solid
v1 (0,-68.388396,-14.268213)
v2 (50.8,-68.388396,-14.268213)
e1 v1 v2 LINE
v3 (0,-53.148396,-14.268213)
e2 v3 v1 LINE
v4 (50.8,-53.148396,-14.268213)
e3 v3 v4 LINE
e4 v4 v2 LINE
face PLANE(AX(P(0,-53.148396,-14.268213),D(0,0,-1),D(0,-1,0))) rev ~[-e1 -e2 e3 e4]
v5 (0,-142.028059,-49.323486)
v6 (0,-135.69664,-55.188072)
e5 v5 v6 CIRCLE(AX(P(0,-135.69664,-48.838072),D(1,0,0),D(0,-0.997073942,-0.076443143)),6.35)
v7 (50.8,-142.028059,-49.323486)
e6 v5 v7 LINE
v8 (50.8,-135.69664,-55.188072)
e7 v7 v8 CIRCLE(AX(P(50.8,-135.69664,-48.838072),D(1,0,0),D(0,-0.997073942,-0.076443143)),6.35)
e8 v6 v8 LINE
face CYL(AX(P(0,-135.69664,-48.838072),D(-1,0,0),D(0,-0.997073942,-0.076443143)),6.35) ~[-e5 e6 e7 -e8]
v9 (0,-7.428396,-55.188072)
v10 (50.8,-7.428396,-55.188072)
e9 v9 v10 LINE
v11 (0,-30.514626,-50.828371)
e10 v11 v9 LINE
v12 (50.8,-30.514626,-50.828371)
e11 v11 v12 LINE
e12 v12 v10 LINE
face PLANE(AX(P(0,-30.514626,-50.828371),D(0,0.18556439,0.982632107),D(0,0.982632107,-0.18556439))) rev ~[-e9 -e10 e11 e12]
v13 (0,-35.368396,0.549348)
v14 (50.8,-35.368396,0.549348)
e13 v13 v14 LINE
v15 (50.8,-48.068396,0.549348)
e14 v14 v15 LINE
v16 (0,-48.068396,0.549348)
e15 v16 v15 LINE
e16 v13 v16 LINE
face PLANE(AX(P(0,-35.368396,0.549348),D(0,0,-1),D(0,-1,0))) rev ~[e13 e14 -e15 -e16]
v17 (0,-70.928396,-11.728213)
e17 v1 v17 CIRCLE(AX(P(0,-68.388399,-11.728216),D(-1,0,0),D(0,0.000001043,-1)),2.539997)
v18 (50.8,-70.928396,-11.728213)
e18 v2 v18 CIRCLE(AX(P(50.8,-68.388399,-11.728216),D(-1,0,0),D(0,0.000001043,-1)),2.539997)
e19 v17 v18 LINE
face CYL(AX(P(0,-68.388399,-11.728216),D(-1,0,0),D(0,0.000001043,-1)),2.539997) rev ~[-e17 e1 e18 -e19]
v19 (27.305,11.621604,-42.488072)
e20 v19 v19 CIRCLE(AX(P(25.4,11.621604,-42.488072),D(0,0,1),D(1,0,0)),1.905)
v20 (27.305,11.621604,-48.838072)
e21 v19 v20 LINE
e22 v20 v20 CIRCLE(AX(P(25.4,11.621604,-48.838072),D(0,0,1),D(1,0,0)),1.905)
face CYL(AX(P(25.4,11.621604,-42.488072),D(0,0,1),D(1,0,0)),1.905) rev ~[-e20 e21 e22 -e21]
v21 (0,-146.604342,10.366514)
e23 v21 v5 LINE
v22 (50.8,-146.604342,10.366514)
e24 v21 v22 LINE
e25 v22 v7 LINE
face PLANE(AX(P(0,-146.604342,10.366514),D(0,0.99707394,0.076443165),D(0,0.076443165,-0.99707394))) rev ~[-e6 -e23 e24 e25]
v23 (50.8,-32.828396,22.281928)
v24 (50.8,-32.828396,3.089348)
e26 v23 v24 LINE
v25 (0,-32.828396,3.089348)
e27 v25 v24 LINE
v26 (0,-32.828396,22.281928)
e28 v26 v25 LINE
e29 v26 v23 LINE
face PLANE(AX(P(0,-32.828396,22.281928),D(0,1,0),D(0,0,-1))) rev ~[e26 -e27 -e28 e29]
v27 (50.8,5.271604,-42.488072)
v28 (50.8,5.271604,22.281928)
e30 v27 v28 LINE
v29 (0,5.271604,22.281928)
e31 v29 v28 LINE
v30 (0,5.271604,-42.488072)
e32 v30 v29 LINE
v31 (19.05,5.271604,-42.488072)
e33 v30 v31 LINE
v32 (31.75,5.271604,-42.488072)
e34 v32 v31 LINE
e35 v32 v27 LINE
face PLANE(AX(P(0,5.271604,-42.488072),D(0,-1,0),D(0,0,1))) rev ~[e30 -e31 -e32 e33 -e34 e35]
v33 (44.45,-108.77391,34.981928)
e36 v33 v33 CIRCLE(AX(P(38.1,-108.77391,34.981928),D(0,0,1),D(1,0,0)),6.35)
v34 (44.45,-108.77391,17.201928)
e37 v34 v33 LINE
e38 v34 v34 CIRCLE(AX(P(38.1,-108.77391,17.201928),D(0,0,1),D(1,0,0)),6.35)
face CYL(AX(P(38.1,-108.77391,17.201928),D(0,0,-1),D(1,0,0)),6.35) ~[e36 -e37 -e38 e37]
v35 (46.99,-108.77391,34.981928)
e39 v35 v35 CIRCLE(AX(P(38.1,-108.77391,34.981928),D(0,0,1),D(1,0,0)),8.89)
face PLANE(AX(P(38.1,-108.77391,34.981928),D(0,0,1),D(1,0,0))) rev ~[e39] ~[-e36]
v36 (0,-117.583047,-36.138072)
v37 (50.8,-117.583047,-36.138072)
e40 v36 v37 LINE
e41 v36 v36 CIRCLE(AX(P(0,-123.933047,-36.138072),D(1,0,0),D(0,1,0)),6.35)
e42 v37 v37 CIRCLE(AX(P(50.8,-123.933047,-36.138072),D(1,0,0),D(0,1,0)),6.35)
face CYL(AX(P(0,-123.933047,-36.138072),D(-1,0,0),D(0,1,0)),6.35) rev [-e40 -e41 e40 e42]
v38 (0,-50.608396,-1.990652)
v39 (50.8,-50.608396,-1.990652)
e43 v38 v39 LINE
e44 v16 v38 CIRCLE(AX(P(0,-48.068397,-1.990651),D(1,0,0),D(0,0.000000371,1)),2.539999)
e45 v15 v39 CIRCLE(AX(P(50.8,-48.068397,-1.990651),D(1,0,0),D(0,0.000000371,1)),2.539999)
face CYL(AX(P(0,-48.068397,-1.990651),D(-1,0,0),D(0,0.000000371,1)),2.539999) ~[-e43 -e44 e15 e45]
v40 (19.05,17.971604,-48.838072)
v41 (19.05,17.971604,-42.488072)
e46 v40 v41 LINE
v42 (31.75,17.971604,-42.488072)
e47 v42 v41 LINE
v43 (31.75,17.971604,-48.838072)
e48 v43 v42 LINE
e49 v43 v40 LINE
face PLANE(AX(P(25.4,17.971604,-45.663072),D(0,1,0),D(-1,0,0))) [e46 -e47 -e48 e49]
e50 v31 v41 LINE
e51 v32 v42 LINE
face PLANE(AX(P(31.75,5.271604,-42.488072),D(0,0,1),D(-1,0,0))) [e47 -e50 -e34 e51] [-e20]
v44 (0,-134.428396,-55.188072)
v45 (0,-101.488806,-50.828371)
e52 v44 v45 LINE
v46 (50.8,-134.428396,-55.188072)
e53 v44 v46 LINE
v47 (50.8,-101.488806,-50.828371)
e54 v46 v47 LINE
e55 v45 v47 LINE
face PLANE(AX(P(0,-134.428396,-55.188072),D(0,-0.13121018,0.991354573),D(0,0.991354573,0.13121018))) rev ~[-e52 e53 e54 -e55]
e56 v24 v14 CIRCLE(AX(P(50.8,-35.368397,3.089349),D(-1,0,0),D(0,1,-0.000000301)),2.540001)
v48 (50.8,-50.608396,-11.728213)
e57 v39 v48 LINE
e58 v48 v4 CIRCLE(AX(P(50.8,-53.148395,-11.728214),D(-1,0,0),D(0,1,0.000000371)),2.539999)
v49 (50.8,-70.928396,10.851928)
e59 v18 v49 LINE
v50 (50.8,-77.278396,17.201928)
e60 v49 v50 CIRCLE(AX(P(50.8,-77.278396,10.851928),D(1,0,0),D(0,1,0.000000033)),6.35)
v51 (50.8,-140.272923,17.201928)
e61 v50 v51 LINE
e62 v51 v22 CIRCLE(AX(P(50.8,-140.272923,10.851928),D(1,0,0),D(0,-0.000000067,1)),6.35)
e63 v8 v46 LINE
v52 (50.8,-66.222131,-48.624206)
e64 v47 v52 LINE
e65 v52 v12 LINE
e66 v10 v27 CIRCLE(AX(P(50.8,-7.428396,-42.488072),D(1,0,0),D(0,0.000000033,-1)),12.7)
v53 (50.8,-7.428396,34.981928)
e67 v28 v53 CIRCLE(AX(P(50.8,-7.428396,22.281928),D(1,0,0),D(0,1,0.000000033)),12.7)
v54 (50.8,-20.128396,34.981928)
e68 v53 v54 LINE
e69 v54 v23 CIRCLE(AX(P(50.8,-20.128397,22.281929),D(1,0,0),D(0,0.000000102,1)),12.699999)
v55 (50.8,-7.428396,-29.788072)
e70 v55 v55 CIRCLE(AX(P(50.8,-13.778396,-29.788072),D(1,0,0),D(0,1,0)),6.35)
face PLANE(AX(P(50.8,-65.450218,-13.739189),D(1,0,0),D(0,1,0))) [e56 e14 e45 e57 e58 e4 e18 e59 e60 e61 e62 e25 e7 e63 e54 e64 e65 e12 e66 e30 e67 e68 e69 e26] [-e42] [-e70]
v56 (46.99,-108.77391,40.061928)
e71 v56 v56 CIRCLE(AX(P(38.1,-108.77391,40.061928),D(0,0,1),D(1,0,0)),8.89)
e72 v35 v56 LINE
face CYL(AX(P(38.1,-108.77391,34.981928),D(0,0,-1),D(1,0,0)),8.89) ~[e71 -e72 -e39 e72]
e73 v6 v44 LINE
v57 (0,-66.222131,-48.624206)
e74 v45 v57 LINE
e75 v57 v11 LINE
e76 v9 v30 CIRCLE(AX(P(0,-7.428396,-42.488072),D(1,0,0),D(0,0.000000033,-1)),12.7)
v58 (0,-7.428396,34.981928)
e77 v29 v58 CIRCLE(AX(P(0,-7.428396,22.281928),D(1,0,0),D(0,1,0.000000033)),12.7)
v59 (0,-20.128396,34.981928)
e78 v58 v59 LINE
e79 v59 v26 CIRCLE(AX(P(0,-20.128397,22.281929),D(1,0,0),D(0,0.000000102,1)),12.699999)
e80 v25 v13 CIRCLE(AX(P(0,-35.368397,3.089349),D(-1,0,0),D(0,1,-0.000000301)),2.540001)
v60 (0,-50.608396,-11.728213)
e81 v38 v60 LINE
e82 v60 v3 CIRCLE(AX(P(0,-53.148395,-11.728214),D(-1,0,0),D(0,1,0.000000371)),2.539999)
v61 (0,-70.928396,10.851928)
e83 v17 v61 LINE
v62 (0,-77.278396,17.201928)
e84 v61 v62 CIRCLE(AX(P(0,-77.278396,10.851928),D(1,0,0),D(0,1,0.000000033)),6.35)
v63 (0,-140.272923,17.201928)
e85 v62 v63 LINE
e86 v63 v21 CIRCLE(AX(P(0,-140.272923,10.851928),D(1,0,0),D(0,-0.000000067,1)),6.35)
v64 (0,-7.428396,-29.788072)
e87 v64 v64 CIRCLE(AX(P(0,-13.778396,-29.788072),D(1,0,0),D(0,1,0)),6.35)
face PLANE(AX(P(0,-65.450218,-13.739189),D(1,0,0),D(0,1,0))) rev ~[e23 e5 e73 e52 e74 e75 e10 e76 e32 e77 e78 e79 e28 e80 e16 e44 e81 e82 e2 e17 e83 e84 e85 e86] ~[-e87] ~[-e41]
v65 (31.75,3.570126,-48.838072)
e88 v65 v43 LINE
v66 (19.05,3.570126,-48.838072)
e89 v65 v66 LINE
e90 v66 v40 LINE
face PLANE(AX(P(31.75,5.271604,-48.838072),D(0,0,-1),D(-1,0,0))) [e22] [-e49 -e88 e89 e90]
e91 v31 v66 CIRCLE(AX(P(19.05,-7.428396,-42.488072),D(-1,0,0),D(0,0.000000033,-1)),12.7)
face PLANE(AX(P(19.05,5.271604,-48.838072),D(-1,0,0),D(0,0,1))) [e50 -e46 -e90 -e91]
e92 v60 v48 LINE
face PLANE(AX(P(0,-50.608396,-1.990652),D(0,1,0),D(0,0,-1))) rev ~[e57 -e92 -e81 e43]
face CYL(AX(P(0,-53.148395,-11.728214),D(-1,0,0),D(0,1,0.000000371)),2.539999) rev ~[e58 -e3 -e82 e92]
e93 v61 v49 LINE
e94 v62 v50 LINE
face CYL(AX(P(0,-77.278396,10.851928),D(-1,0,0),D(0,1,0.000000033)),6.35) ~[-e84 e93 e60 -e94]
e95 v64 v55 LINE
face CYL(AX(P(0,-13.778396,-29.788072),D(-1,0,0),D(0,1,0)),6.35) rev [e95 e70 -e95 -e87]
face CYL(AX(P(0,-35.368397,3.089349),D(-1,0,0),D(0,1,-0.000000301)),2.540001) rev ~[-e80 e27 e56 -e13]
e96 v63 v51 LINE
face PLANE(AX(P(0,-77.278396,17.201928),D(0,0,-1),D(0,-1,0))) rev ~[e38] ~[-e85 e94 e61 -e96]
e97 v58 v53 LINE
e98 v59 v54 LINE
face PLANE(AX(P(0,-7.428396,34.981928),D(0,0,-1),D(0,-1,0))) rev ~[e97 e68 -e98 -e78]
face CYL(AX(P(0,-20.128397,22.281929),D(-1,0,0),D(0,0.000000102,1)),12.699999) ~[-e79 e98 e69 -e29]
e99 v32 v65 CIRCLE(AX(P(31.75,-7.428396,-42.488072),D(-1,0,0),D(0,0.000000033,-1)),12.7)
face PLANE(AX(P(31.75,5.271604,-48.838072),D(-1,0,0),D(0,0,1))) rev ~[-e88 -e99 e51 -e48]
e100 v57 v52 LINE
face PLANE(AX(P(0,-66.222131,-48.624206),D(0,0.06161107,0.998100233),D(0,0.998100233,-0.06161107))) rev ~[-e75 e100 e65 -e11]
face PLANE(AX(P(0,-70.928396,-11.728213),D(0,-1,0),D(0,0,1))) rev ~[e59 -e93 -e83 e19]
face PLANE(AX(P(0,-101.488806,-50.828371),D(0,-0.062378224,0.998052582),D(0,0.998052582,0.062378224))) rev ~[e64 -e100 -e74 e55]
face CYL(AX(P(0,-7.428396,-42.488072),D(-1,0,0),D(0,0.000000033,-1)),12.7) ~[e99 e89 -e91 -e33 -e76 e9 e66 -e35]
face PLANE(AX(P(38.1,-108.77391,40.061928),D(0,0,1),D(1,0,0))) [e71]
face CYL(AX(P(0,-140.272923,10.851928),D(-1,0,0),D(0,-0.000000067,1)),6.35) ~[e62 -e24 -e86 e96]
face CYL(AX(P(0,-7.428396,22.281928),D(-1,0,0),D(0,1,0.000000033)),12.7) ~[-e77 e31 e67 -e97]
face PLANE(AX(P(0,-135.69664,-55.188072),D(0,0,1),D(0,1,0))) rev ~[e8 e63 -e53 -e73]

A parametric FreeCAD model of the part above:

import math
import FreeCAD as App
import Part
import Sketcher
Q = App.Units.Quantity

doc = App.newDocument("Part")
params = doc.addObject("Spreadsheet::Sheet", "Params")
for row, (alias, value) in enumerate([
    ("sketch1_diameter", "0.5 in"),
    ("sketch1_radius", "0.4999999 in"),
    ("sketch1_radius2", "0.1 in"),
    ("sketch1_width", "0.5 in"),
    ("sketch1_width2", "0.6 in"),
    ("pad1_length", "2 in"),
    ("sketch2_diameter", "0.5 in"),
    ("pad2_length", "0.7 in"),
    ("sketch3_diameter", "0.7 in"),
    ("pad3_length", "0.2 in"),
    ("sketch4_width", "0.5 in"),
    ("sketch4_height", "0.25 in"),
    ("pad4_length", "0.5 in"),
    ("pad4_length2", "1 in"),
    ("sketch5_diameter", "0.15 in"),
    ("pocket1_length", "0.5 in"),
], start=1):
    params.set(f"A{row}", alias)
    params.set(f"B{row}", "=" + value)
    params.setAlias(f"B{row}", alias)

body = doc.addObject("PartDesign::Body", "Body")

sketch1 = body.newObject("Sketcher::SketchObject", "Sketch")
sketch1.AttachmentSupport = (doc.getObject("YZ_Plane"), [""])
sketch1.MapMode = "FlatFace"
sketch1.addGeometry(Part.LineSegment(App.Vector(-7.428396, 34.981928, 0), App.Vector(-20.128396, 34.981928, 0)), False)
sketch1.addGeometry(Part.ArcOfCircle(Part.Circle(App.Vector(-20.128397, 22.281929, 0), App.Vector(0, 0, 1), 12.699999), math.radians(89.999994), math.radians(180.000006)), False)
sketch1.addGeometry(Part.LineSegment(App.Vector(-32.828396, 22.281928, 0), App.Vector(-32.828396, 3.089348, 0)), False)
sketch1.addGeometry(Part.ArcOfCircle(Part.Circle(App.Vector(-35.368397, 3.089349, 0), App.Vector(0, 0, 1), 2.540001), math.radians(-89.999983), math.radians(-0.000017)), False)
sketch1.addGeometry(Part.LineSegment(App.Vector(-35.368396, 0.549348, 0), App.Vector(-48.068396, 0.549348, 0)), False)
sketch1.addGeometry(Part.ArcOfCircle(Part.Circle(App.Vector(-48.068397, -1.990651, 0), App.Vector(0, 0, 1), 2.539999), math.radians(89.999979), math.radians(180.000021)), False)
sketch1.addGeometry(Part.LineSegment(App.Vector(-50.608396, -1.990652, 0), App.Vector(-50.608396, -11.728213, 0)), False)
sketch1.addGeometry(Part.ArcOfCircle(Part.Circle(App.Vector(-53.148395, -11.728214, 0), App.Vector(0, 0, 1), 2.539999), math.radians(-90.000021), math.radians(0.000021)), False)
sketch1.addGeometry(Part.LineSegment(App.Vector(-53.148396, -14.268213, 0), App.Vector(-68.388396, -14.268213, 0)), False)
sketch1.addGeometry(Part.ArcOfCircle(Part.Circle(App.Vector(-68.388399, -11.728216, 0), App.Vector(0, 0, 1), 2.539997), math.radians(179.99994), math.radians(270.00006)), False)
sketch1.addGeometry(Part.LineSegment(App.Vector(-70.928396, -11.728213, 0), App.Vector(-70.928396, 10.851928, 0)), False)
sketch1.addGeometry(Part.ArcOfCircle(Part.Circle(App.Vector(-77.278396, 10.851928, 0), App.Vector(0, 0, 1), 6.35), math.radians(0.000002), math.radians(89.999998)), False)
sketch1.addGeometry(Part.LineSegment(App.Vector(-77.278396, 17.201928, 0), App.Vector(-140.272923, 17.201928, 0)), False)
sketch1.addGeometry(Part.ArcOfCircle(Part.Circle(App.Vector(-140.272923, 10.851928, 0), App.Vector(0, 0, 1), 6.35), math.radians(90.000004), math.radians(184.384148)), False)
sketch1.addGeometry(Part.LineSegment(App.Vector(-146.604342, 10.366514, 0), App.Vector(-142.028059, -49.323486, 0)), False)
sketch1.addGeometry(Part.ArcOfCircle(Part.Circle(App.Vector(-135.69664, -48.838072, 0), App.Vector(0, 0, 1), 6.35), math.radians(-175.615854), math.radians(-90.000004)), False)
sketch1.addGeometry(Part.LineSegment(App.Vector(-135.69664, -55.188072, 0), App.Vector(-134.428396, -55.188072, 0)), False)
sketch1.addGeometry(Part.LineSegment(App.Vector(-134.428396, -55.188072, 0), App.Vector(-101.488806, -50.828371, 0)), False)
sketch1.addGeometry(Part.LineSegment(App.Vector(-101.488806, -50.828371, 0), App.Vector(-66.222131, -48.624206, 0)), False)
sketch1.addGeometry(Part.LineSegment(App.Vector(-66.222131, -48.624206, 0), App.Vector(-30.514626, -50.828371, 0)), False)
sketch1.addGeometry(Part.LineSegment(App.Vector(-30.514626, -50.828371, 0), App.Vector(-7.428396, -55.188072, 0)), False)
sketch1.addGeometry(Part.ArcOfCircle(Part.Circle(App.Vector(-7.428396, -42.488072, 0), App.Vector(0, 0, 1), 12.7), math.radians(-89.999998), math.radians(-0.000002)), False)
sketch1.addGeometry(Part.LineSegment(App.Vector(5.271604, -42.488072, 0), App.Vector(5.271604, 22.281928, 0)), False)
sketch1.addGeometry(Part.ArcOfCircle(Part.Circle(App.Vector(-7.428396, 22.281928, 0), App.Vector(0, 0, 1), 12.7), math.radians(0.000002), math.radians(89.999998)), False)
sketch1.addGeometry(Part.Circle(App.Vector(-123.933047, -36.138072, 0), App.Vector(0, 0, 1), 6.35), False)
sketch1.addGeometry(Part.Circle(App.Vector(-13.778396, -29.788072, 0), App.Vector(0, 0, 1), 6.35), False)
sketch1.addConstraint(Sketcher.Constraint("Tangent", 0, 2, 1, 1))
sketch1.addConstraint(Sketcher.Constraint("Tangent", 1, 2, 2, 1))
sketch1.addConstraint(Sketcher.Constraint("Tangent", 2, 2, 3, 2))
sketch1.addConstraint(Sketcher.Constraint("Tangent", 3, 1, 4, 1))
sketch1.addConstraint(Sketcher.Constraint("Tangent", 4, 2, 5, 1))
sketch1.addConstraint(Sketcher.Constraint("Tangent", 5, 2, 6, 1))
sketch1.addConstraint(Sketcher.Constraint("Tangent", 6, 2, 7, 2))
sketch1.addConstraint(Sketcher.Constraint("Tangent", 7, 1, 8, 1))
sketch1.addConstraint(Sketcher.Constraint("Tangent", 8, 2, 9, 2))
sketch1.addConstraint(Sketcher.Constraint("Tangent", 9, 1, 10, 1))
sketch1.addConstraint(Sketcher.Constraint("Tangent", 10, 2, 11, 1))
sketch1.addConstraint(Sketcher.Constraint("Tangent", 11, 2, 12, 1))
sketch1.addConstraint(Sketcher.Constraint("Tangent", 12, 2, 13, 1))
sketch1.addConstraint(Sketcher.Constraint("Tangent", 13, 2, 14, 1))
sketch1.addConstraint(Sketcher.Constraint("Tangent", 14, 2, 15, 1))
sketch1.addConstraint(Sketcher.Constraint("Tangent", 15, 2, 16, 1))
sketch1.addConstraint(Sketcher.Constraint("Coincident", 16, 2, 17, 1))
sketch1.addConstraint(Sketcher.Constraint("Coincident", 17, 2, 18, 1))
sketch1.addConstraint(Sketcher.Constraint("Coincident", 18, 2, 19, 1))
sketch1.addConstraint(Sketcher.Constraint("Coincident", 19, 2, 20, 1))
sketch1.addConstraint(Sketcher.Constraint("Coincident", 20, 2, 21, 1))
sketch1.addConstraint(Sketcher.Constraint("Tangent", 21, 2, 22, 1))
sketch1.addConstraint(Sketcher.Constraint("Tangent", 22, 2, 23, 1))
sketch1.addConstraint(Sketcher.Constraint("Tangent", 23, 2, 0, 1))
sketch1.addConstraint(Sketcher.Constraint("Horizontal", 0))
sketch1.addConstraint(Sketcher.Constraint("Vertical", 2))
sketch1.addConstraint(Sketcher.Constraint("Horizontal", 4))
sketch1.addConstraint(Sketcher.Constraint("Vertical", 6))
sketch1.addConstraint(Sketcher.Constraint("Horizontal", 8))
sketch1.addConstraint(Sketcher.Constraint("Vertical", 10))
sketch1.addConstraint(Sketcher.Constraint("Horizontal", 12))
sketch1.addConstraint(Sketcher.Constraint("Horizontal", 16))
sketch1.addConstraint(Sketcher.Constraint("Vertical", 22))
sketch1.addConstraint(Sketcher.Constraint("Equal", 3, 5))
sketch1.addConstraint(Sketcher.Constraint("Equal", 5, 7))
sketch1.addConstraint(Sketcher.Constraint("Equal", 7, 9))
sketch1.addConstraint(Sketcher.Constraint("Equal", 11, 13))
sketch1.addConstraint(Sketcher.Constraint("Equal", 13, 15))
sketch1.addConstraint(Sketcher.Constraint("Equal", 1, 21))
sketch1.addConstraint(Sketcher.Constraint("Equal", 21, 23))
sketch1.addConstraint(Sketcher.Constraint("Equal", 15, 24))
sketch1.addConstraint(Sketcher.Constraint("Equal", 24, 25))
sketch1.addConstraint(Sketcher.Constraint("Horizontal", 17, 2, 19, 2))
sketch1.addConstraint(Sketcher.Constraint("Horizontal", 16, 2, 20, 2))
sketch1.addConstraint(Sketcher.Constraint("Vertical", 23, 3, 20, 2))
sketch1.addConstraint(Sketcher.Constraint("Equal", 0, 4))
sketch1.addConstraint(Sketcher.Constraint("Diameter", 24, Q("0.5 in")))
sketch1.addConstraint(Sketcher.Constraint("Radius", 1, Q("0.4999999 in")))
sketch1.addConstraint(Sketcher.Constraint("Radius", 3, Q("0.1 in")))
sketch1.addConstraint(Sketcher.Constraint("DistanceX", 0, 2, 0, 1, Q("0.5 in")))
sketch1.addConstraint(Sketcher.Constraint("DistanceX", 8, 2, 8, 1, Q("0.6 in")))
sketch1.addConstraint(Sketcher.Constraint("DistanceY", 20, 2, 25, 3, Q("1 in")))
sketch1.addConstraint(Sketcher.Constraint("DistanceY", 22, 1, 22, 2, Q("2.55 in")))
sketch1.addConstraint(Sketcher.Constraint("DistanceY", 15, 3, 24, 3, Q("0.5 in")))
sketch1.addConstraint(Sketcher.Constraint("DistanceY", 24, 3, 12, 2, Q("2.1 in")))
sketch1.addConstraint(Sketcher.Constraint("DistanceX", 25, 3, 21, 3, Q("0.25 in")))
sketch1.addConstraint(Sketcher.Constraint("DistanceX", 14, 2, 13, 3, Q("0.0690999 in")))
sketch1.addConstraint(Sketcher.Constraint("DistanceY", 2, 2, 2, 1, Q("19.19258 mm")))
sketch1.addConstraint(Sketcher.Constraint("DistanceY", 6, 2, 6, 1, Q("9.737561 mm")))
sketch1.addConstraint(Sketcher.Constraint("DistanceX", 9, 3, -1, 1, Q("68.388399 mm")))
sketch1.addConstraint(Sketcher.Constraint("DistanceY", 17, 2, 24, 3, Q("14.690299 mm")))
sketch1.addConstraint(Sketcher.Constraint("Distance", 17, Q("33.22685 mm")))
sketch1.addConstraint(Sketcher.Constraint("Distance", 19, Q("35.77547 mm")))
sketch1.addConstraint(Sketcher.Constraint("DistanceX", 12, 2, 12, 1, Q("62.994527 mm")))
sketch1.addConstraint(Sketcher.Constraint("DistanceX", 16, 1, 16, 2, Q("1.268244 mm")))
sketch1.addConstraint(Sketcher.Constraint("DistanceY", -1, 1, 1, 3, Q("22.281929 mm")))
sketch1.addConstraint(Sketcher.Constraint("DistanceX", 18, 2, -1, 1, Q("66.222131 mm")))
sketch1.addConstraint(Sketcher.Constraint("DistanceX", 24, 3, 9, 3, Q("55.544648 mm")))
sketch1.addConstraint(Sketcher.Constraint("DistanceY", 18, 2, 9, 3, Q("36.89599 mm")))
sketch1.setExpression("Constraints[46]", "Params.sketch1_diameter")
sketch1.setExpression("Constraints[47]", "Params.sketch1_radius")
sketch1.setExpression("Constraints[48]", "Params.sketch1_radius2")
sketch1.setExpression("Constraints[49]", "Params.sketch1_width")
sketch1.setExpression("Constraints[50]", "Params.sketch1_width2")
pad1 = body.newObject("PartDesign::Pad", "Pad")
pad1.Profile = sketch1
pad1.setExpression("Length", "Params.pad1_length")

sketch2 = body.newObject("Sketcher::SketchObject", "Sketch001")
sketch2.AttachmentSupport = (doc.getObject("XY_Plane"), [""])
sketch2.MapMode = "FlatFace"
sketch2.AttachmentOffset = App.Placement(App.Vector(0, 0, 17.201928), App.Rotation())
sketch2.addGeometry(Part.Circle(App.Vector(38.1, -108.77391, 0), App.Vector(0, 0, 1), 6.35), False)
sketch2.addConstraint(Sketcher.Constraint("Diameter", 0, Q("0.5 in")))
sketch2.addConstraint(Sketcher.Constraint("DistanceX", -1, 1, 0, 3, Q("1.5 in")))
sketch2.addConstraint(Sketcher.Constraint("DistanceY", 0, 3, -1, 1, Q("108.77391 mm")))
sketch2.setExpression("Constraints[0]", "Params.sketch2_diameter")
pad2 = body.newObject("PartDesign::Pad", "Pad001")
pad2.Profile = sketch2
pad2.setExpression("Length", "Params.pad2_length")

sketch3 = body.newObject("Sketcher::SketchObject", "Sketch002")
sketch3.AttachmentSupport = (doc.getObject("XY_Plane"), [""])
sketch3.MapMode = "FlatFace"
sketch3.AttachmentOffset = App.Placement(App.Vector(0, 0, 34.981928), App.Rotation())
sketch3.addGeometry(Part.Circle(App.Vector(38.1, -108.77391, 0), App.Vector(0, 0, 1), 8.89), False)
sketch3.addConstraint(Sketcher.Constraint("Diameter", 0, Q("0.7 in")))
sketch3.addConstraint(Sketcher.Constraint("DistanceX", -1, 1, 0, 3, Q("1.5 in")))
sketch3.addConstraint(Sketcher.Constraint("DistanceY", 0, 3, -1, 1, Q("108.77391 mm")))
sketch3.setExpression("Constraints[0]", "Params.sketch3_diameter")
pad3 = body.newObject("PartDesign::Pad", "Pad002")
pad3.Profile = sketch3
pad3.setExpression("Length", "Params.pad3_length")

sketch4 = body.newObject("Sketcher::SketchObject", "Sketch003")
sketch4.AttachmentSupport = (doc.getObject("XZ_Plane"), [""])
sketch4.MapMode = "FlatFace"
sketch4.AttachmentOffset = App.Placement(App.Vector(0, 0, -5.271604), App.Rotation())
sketch4.addGeometry(Part.LineSegment(App.Vector(31.75, -42.488072, 0), App.Vector(31.75, -48.838072, 0)), False)
sketch4.addGeometry(Part.LineSegment(App.Vector(31.75, -48.838072, 0), App.Vector(19.05, -48.838072, 0)), False)
sketch4.addGeometry(Part.LineSegment(App.Vector(19.05, -48.838072, 0), App.Vector(19.05, -42.488072, 0)), False)
sketch4.addGeometry(Part.LineSegment(App.Vector(19.05, -42.488072, 0), App.Vector(31.75, -42.488072, 0)), False)
sketch4.addConstraint(Sketcher.Constraint("Coincident", 0, 2, 1, 1))
sketch4.addConstraint(Sketcher.Constraint("Coincident", 1, 2, 2, 1))
sketch4.addConstraint(Sketcher.Constraint("Coincident", 2, 2, 3, 1))
sketch4.addConstraint(Sketcher.Constraint("Coincident", 3, 2, 0, 1))
sketch4.addConstraint(Sketcher.Constraint("Vertical", 0))
sketch4.addConstraint(Sketcher.Constraint("Horizontal", 1))
sketch4.addConstraint(Sketcher.Constraint("Vertical", 2))
sketch4.addConstraint(Sketcher.Constraint("Horizontal", 3))
sketch4.addConstraint(Sketcher.Constraint("DistanceX", 1, 2, 1, 1, Q("0.5 in")))
sketch4.addConstraint(Sketcher.Constraint("DistanceY", 0, 2, 0, 1, Q("0.25 in")))
sketch4.addConstraint(Sketcher.Constraint("DistanceX", -1, 1, 0, 2, Q("1.25 in")))
sketch4.addConstraint(Sketcher.Constraint("DistanceY", 0, 2, -1, 1, Q("48.838072 mm")))
sketch4.setExpression("Constraints[8]", "Params.sketch4_width")
sketch4.setExpression("Constraints[9]", "Params.sketch4_height")
pad4 = body.newObject("PartDesign::Pad", "Pad003")
pad4.Profile = sketch4
pad4.Type = "TwoLengths"
pad4.setExpression("Length", "Params.pad4_length")
pad4.setExpression("Length2", "Params.pad4_length2")
pad4.Reversed = True

sketch5 = body.newObject("Sketcher::SketchObject", "Sketch004")
sketch5.AttachmentSupport = (doc.getObject("XY_Plane"), [""])
sketch5.MapMode = "FlatFace"
sketch5.AttachmentOffset = App.Placement(App.Vector(0, 0, -42.488072), App.Rotation())
sketch5.addGeometry(Part.Circle(App.Vector(25.4, 11.621604, 0), App.Vector(0, 0, 1), 1.905), False)
sketch5.addConstraint(Sketcher.Constraint("Diameter", 0, Q("0.15 in")))
sketch5.addConstraint(Sketcher.Constraint("DistanceX", -1, 1, 0, 3, Q("1 in")))
sketch5.addConstraint(Sketcher.Constraint("DistanceY", -1, 1, 0, 3, Q("11.621604 mm")))
sketch5.setExpression("Constraints[0]", "Params.sketch5_diameter")
pocket1 = body.newObject("PartDesign::Pocket", "Pocket")
pocket1.Profile = sketch5
pocket1.setExpression("Length", "Params.pocket1_length")

doc.recompute()
